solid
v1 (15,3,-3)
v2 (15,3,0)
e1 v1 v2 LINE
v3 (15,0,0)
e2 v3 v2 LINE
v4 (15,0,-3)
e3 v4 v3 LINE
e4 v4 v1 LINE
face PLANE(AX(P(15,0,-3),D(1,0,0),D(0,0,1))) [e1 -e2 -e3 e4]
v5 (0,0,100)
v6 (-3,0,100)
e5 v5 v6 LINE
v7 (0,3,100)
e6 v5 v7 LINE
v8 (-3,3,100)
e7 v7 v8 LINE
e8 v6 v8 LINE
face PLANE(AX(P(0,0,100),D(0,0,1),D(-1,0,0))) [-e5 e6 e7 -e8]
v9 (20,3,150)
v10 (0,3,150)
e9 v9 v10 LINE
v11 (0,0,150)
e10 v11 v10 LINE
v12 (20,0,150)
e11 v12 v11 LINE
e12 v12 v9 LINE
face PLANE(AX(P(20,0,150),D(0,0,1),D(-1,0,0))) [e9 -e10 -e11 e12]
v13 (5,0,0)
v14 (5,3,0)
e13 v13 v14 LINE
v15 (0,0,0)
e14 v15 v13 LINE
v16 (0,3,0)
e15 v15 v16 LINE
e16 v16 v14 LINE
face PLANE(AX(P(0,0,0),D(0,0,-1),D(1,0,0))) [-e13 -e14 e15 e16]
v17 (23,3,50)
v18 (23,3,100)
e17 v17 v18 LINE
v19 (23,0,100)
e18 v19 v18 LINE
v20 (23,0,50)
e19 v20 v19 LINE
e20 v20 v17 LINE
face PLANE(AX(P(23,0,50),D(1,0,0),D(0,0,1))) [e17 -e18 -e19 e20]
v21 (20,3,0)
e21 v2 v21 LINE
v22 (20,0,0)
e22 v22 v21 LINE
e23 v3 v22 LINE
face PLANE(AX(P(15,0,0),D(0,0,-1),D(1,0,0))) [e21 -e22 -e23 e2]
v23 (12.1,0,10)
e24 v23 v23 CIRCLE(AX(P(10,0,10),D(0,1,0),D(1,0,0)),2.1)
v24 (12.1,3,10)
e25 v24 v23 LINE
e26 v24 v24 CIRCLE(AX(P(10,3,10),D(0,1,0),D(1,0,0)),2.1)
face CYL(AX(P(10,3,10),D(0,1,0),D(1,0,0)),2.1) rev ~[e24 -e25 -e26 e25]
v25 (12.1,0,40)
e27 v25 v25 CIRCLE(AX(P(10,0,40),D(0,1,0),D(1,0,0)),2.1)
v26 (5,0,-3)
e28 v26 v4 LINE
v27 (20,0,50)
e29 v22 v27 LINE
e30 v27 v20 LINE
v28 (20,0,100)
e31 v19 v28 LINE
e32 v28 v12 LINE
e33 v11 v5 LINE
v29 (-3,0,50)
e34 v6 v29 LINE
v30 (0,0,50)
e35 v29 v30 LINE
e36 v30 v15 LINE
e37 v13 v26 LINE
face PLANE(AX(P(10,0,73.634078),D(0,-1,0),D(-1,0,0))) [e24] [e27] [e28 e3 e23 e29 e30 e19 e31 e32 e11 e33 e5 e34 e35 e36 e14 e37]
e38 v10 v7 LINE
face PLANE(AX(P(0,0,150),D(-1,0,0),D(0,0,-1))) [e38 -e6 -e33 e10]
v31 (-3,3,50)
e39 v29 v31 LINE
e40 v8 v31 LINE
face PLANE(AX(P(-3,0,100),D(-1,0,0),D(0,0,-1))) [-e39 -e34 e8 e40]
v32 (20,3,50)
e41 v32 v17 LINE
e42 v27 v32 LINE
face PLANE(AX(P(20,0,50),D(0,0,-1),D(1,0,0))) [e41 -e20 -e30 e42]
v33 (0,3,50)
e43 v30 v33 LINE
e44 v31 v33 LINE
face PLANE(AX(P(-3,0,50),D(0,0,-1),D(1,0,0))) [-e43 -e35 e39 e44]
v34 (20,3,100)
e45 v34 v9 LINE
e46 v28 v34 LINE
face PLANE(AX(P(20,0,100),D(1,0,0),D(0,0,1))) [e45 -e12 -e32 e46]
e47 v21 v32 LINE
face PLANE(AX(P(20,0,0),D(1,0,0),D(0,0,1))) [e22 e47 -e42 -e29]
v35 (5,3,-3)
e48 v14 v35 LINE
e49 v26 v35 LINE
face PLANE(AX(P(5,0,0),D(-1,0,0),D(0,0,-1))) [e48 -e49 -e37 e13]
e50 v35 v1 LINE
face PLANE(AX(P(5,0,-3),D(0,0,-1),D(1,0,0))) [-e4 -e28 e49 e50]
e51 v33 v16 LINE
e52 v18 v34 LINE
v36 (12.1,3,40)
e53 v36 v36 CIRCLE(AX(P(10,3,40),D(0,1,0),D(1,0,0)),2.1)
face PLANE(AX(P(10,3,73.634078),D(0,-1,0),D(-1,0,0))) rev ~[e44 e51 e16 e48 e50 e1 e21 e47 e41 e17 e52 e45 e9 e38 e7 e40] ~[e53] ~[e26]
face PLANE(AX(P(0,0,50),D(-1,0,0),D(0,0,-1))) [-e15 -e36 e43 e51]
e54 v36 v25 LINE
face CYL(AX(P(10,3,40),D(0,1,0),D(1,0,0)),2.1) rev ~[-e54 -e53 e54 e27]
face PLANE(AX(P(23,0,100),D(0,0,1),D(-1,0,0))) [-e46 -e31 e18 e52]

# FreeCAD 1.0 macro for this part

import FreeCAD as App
import Part
import Sketcher
from FreeCAD import Vector


def add_polygon(sketch, points):
    """Adds a closed chain of lines whose ends are joined by coincident constraints."""
    first, n = sketch.GeometryCount, len(points)
    for a, b in zip(points, points[1:] + points[:1]):
        sketch.addGeometry(Part.LineSegment(App.Vector(*a, 0), App.Vector(*b, 0)), False)
    for i in range(n):
        sketch.addConstraint(Sketcher.Constraint("Coincident", first + i, 2, first + (i + 1) % n, 1))

doc = App.newDocument("Part")
body = doc.addObject("PartDesign::Body", "Body")

sketch1 = doc.addObject("Sketcher::SketchObject", "Sketch")
body.addObject(sketch1)
sketch1.AttachmentSupport = (doc.XZ_Plane, [""])
sketch1.MapMode = "FlatFace"
add_polygon(sketch1, [(20, 0), (15, 0), (15, -3), (5, -3), (5, 0), (0, 0), (0, 50), (-3, 50), (-3, 100), (0, 100), (0, 150), (20, 150), (20, 100), (23, 100), (23, 50), (20, 50)])
sketch1.addConstraint([
    Sketcher.Constraint("Horizontal", 0),
    Sketcher.Constraint("Vertical", 1),
    Sketcher.Constraint("Horizontal", 2),
    Sketcher.Constraint("Vertical", 3),
    Sketcher.Constraint("Horizontal", 4),
    Sketcher.Constraint("Vertical", 5),
    Sketcher.Constraint("Horizontal", 6),
    Sketcher.Constraint("Vertical", 7),
    Sketcher.Constraint("Horizontal", 8),
    Sketcher.Constraint("Vertical", 9),
    Sketcher.Constraint("Horizontal", 10),
    Sketcher.Constraint("Vertical", 11),
    Sketcher.Constraint("Horizontal", 12),
    Sketcher.Constraint("Vertical", 13),
    Sketcher.Constraint("Horizontal", 14),
    Sketcher.Constraint("Vertical", 15),
    Sketcher.Constraint("Coincident", 4, 2, -1, 1),
    Sketcher.Constraint("PointOnObject", 0, 2, -1),
    Sketcher.Constraint("PointOnObject", 8, 2, -2),
    Sketcher.Constraint("Horizontal", 8, 2, 11, 2),
    Sketcher.Constraint("Horizontal", 6, 2, 13, 2),
    Sketcher.Constraint("Vertical", 11, 2, 14, 2),
    Sketcher.Constraint("Equal", 0, 4),
    Sketcher.Constraint("Equal", 8, 12),
    Sketcher.Constraint("Equal", 14, 1),
    Sketcher.Constraint("Equal", 5, 7),
    Sketcher.Constraint("Equal", 7, 9),
    Sketcher.Constraint("DistanceX", 0, 2, 0, 1, 5.0),
    Sketcher.Constraint("DistanceX", 2, 2, 2, 1, 10.0),
    Sketcher.Constraint("DistanceX", 6, 2, 6, 1, 3.0),
    Sketcher.Constraint("DistanceY", 5, 1, 5, 2, 50.0),
])
pad1 = doc.addObject("PartDesign::Pad", "Pad")
body.addObject(pad1)
pad1.Profile = sketch1
pad1.Length = 3
pad1.Reversed = True

sketch2 = doc.addObject("Sketcher::SketchObject", "Sketch001")
body.addObject(sketch2)
sketch2.AttachmentSupport = (doc.XZ_Plane, [""])
sketch2.MapMode = "FlatFace"
sketch2.AttachmentOffset = App.Placement(Vector(0, 0, -3), App.Rotation())
sketch2.addGeometry([
    Part.Circle(Vector(10, 10, 0), Vector(0, 0, 1), 2.1),
    Part.Circle(Vector(10, 40, 0), Vector(0, 0, 1), 2.1),
], False)
sketch2.addConstraint([
    Sketcher.Constraint("Equal", 0, 1),
    Sketcher.Constraint("Vertical", 0, 3, 1, 3),
    Sketcher.Constraint("Diameter", 0, 4.2),
    Sketcher.Constraint("DistanceX", -1, 1, 0, 3, 10.0),
    Sketcher.Constraint("DistanceY", -1, 1, 0, 3, 10.0),
    Sketcher.Constraint("DistanceY", -1, 1, 1, 3, 40.0),
])
pocket1 = doc.addObject("PartDesign::Pocket", "Pocket")
body.addObject(pocket1)
pocket1.Profile = sketch2
pocket1.Type = "ThroughAll"
pocket1.Reversed = True

doc.recompute()
